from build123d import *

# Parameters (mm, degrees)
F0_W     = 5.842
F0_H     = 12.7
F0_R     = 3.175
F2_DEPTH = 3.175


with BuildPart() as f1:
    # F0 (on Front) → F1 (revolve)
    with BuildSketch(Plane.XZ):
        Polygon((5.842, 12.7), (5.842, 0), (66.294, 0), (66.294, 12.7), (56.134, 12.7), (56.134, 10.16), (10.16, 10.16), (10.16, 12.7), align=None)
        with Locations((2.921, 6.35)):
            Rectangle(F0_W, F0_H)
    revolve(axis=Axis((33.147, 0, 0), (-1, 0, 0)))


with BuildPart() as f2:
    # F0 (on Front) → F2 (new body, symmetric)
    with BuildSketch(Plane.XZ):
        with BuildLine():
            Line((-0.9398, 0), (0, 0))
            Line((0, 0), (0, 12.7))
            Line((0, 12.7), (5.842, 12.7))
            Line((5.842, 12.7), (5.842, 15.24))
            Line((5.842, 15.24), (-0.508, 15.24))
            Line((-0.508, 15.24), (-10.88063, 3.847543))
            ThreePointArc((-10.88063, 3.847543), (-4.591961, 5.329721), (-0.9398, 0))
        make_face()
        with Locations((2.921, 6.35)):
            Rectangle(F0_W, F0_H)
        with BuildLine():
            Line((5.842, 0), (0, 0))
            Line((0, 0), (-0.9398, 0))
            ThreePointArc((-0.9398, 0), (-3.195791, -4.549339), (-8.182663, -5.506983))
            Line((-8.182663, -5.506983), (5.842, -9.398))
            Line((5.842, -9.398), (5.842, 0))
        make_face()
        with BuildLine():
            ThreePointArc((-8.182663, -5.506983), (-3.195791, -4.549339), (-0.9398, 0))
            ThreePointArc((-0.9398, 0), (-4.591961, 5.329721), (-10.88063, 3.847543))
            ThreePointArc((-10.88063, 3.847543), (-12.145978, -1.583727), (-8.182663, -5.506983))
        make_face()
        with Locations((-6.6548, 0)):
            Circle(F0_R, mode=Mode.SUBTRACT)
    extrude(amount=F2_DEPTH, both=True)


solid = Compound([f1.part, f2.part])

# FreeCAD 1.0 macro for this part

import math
import FreeCAD as App
import Part
import Sketcher
Q = App.Units.Quantity

doc = App.newDocument("Part")
body = doc.addObject("PartDesign::Body", "Body")

# Sketch on XZ plane
sketch1 = body.newObject("Sketcher::SketchObject", "Sketch")
sketch1.AttachmentSupport = (doc.getObject("XZ_Plane"), [""])
sketch1.MapMode = "FlatFace"
sketch1.addGeometry([
    Part.LineSegment(App.Vector(66.3, 0, 0), App.Vector(66.3, 12.7, 0)),  # 0
    Part.LineSegment(App.Vector(66.3, 12.7, 0), App.Vector(56.1, 12.7, 0)),  # 1
    Part.LineSegment(App.Vector(56.1, 12.7, 0), App.Vector(56.1, 10.2, 0)),  # 2
    Part.LineSegment(App.Vector(56.1, 10.2, 0), App.Vector(10.2, 10.2, 0)),  # 3
    Part.LineSegment(App.Vector(10.2, 10.2, 0), App.Vector(10.2, 12.7, 0)),  # 4
    Part.LineSegment(App.Vector(10.2, 12.7, 0), App.Vector(0, 12.7, 0)),  # 5
    Part.LineSegment(App.Vector(0, 12.7, 0), App.Vector(0, 0, 0)),  # 6
    Part.LineSegment(App.Vector(0, 0, 0), App.Vector(66.3, 0, 0)),  # 7
], False)
sketch1.addConstraint([
    Sketcher.Constraint("Coincident", 0, 2, 1, 1),
    Sketcher.Constraint("Coincident", 1, 2, 2, 1),
    Sketcher.Constraint("Coincident", 2, 2, 3, 1),
    Sketcher.Constraint("Coincident", 3, 2, 4, 1),
    Sketcher.Constraint("Coincident", 4, 2, 5, 1),
    Sketcher.Constraint("Coincident", 5, 2, 6, 1),
    Sketcher.Constraint("Coincident", 6, 2, 7, 1),
    Sketcher.Constraint("Coincident", 7, 2, 0, 1),
    Sketcher.Constraint("Vertical", 0),
    Sketcher.Constraint("Horizontal", 1),
    Sketcher.Constraint("Vertical", 2),
    Sketcher.Constraint("Horizontal", 3),
    Sketcher.Constraint("Vertical", 4),
    Sketcher.Constraint("Horizontal", 5),
    Sketcher.Constraint("Vertical", 6),
    Sketcher.Constraint("Horizontal", 7),
    Sketcher.Constraint("Coincident", 6, 2, -1, 1),
    Sketcher.Constraint("Horizontal", 1, 2, 4, 2),
    Sketcher.Constraint("Equal", 1, 5),
    Sketcher.Constraint("DistanceX", 1, 2, 1, 1, Q("0.4 in")),
    Sketcher.Constraint("DistanceY", 0, 1, 0, 2, Q("0.5 in")),
    Sketcher.Constraint("DistanceY", 2, 2, 2, 1, Q("0.1 in")),
    Sketcher.Constraint("DistanceX", 3, 2, 3, 1, Q("1.81 in")),
])
revolution = body.newObject("PartDesign::Revolution", "Revolution")
revolution.Profile = sketch1
revolution.ReferenceAxis = (sketch1, ["H_Axis"])
revolution.Angle = 360
body2 = doc.addObject("PartDesign::Body", "Body001")

# Sketch on XZ plane
sketch2 = body2.newObject("Sketcher::SketchObject", "Sketch001")
sketch2.AttachmentSupport = (doc.getObject("XZ_Plane001"), [""])
sketch2.MapMode = "FlatFace"
sketch2.addGeometry([
    Part.LineSegment(App.Vector(5.8, 15.2, 0), App.Vector(-0.5, 15.2, 0)),  # 0
    Part.LineSegment(App.Vector(-0.5, 15.2, 0), App.Vector(-10.9, 3.8, 0)),  # 1
    Part.ArcOfCircle(Part.Circle(App.Vector(-6.7, 0, 0), App.Vector(0, 0, 1), 5.7), math.radians(138), math.radians(254)),  # 2
    Part.LineSegment(App.Vector(-8.2, -5.5, 0), App.Vector(5.8, -9.4, 0)),  # 3
    Part.LineSegment(App.Vector(5.8, -9.4, 0), App.Vector(5.8, 15.2, 0)),  # 4
    Part.Circle(App.Vector(-6.7, 0, 0), App.Vector(0, 0, 1), 3.2),  # 5
], False)
sketch2.addConstraint([
    Sketcher.Constraint("Coincident", 0, 2, 1, 1),
    Sketcher.Constraint("Tangent", 1, 2, 2, 1),
    Sketcher.Constraint("Tangent", 2, 2, 3, 1),
    Sketcher.Constraint("Coincident", 3, 2, 4, 1),
    Sketcher.Constraint("Coincident", 4, 2, 0, 1),
    Sketcher.Constraint("Horizontal", 0),
    Sketcher.Constraint("Vertical", 4),
    Sketcher.Constraint("Coincident", 5, 3, 2, 3),
    Sketcher.Constraint("PointOnObject", 2, 3, -1),
    Sketcher.Constraint("Diameter", 5, Q("0.25 in")),
    Sketcher.Constraint("Radius", 2, Q("0.225 in")),
    Sketcher.Constraint("DistanceX", 0, 2, 0, 1, Q("0.25 in")),
    Sketcher.Constraint("DistanceY", 4, 1, 4, 2, Q("0.97 in")),
    Sketcher.Constraint("DistanceY", -1, 1, 0, 2, Q("0.6 in")),
    Sketcher.Constraint("DistanceX", 0, 2, -1, 1, Q("0.02 in")),
    Sketcher.Constraint("DistanceX", 2, 3, -1, 1, Q("0.262 in")),
])
pad1 = body2.newObject("PartDesign::Pad", "Pad")
pad1.Profile = sketch2
pad1.Length = Q("0.25 in")
pad1.Midplane = True

doc.recompute()
